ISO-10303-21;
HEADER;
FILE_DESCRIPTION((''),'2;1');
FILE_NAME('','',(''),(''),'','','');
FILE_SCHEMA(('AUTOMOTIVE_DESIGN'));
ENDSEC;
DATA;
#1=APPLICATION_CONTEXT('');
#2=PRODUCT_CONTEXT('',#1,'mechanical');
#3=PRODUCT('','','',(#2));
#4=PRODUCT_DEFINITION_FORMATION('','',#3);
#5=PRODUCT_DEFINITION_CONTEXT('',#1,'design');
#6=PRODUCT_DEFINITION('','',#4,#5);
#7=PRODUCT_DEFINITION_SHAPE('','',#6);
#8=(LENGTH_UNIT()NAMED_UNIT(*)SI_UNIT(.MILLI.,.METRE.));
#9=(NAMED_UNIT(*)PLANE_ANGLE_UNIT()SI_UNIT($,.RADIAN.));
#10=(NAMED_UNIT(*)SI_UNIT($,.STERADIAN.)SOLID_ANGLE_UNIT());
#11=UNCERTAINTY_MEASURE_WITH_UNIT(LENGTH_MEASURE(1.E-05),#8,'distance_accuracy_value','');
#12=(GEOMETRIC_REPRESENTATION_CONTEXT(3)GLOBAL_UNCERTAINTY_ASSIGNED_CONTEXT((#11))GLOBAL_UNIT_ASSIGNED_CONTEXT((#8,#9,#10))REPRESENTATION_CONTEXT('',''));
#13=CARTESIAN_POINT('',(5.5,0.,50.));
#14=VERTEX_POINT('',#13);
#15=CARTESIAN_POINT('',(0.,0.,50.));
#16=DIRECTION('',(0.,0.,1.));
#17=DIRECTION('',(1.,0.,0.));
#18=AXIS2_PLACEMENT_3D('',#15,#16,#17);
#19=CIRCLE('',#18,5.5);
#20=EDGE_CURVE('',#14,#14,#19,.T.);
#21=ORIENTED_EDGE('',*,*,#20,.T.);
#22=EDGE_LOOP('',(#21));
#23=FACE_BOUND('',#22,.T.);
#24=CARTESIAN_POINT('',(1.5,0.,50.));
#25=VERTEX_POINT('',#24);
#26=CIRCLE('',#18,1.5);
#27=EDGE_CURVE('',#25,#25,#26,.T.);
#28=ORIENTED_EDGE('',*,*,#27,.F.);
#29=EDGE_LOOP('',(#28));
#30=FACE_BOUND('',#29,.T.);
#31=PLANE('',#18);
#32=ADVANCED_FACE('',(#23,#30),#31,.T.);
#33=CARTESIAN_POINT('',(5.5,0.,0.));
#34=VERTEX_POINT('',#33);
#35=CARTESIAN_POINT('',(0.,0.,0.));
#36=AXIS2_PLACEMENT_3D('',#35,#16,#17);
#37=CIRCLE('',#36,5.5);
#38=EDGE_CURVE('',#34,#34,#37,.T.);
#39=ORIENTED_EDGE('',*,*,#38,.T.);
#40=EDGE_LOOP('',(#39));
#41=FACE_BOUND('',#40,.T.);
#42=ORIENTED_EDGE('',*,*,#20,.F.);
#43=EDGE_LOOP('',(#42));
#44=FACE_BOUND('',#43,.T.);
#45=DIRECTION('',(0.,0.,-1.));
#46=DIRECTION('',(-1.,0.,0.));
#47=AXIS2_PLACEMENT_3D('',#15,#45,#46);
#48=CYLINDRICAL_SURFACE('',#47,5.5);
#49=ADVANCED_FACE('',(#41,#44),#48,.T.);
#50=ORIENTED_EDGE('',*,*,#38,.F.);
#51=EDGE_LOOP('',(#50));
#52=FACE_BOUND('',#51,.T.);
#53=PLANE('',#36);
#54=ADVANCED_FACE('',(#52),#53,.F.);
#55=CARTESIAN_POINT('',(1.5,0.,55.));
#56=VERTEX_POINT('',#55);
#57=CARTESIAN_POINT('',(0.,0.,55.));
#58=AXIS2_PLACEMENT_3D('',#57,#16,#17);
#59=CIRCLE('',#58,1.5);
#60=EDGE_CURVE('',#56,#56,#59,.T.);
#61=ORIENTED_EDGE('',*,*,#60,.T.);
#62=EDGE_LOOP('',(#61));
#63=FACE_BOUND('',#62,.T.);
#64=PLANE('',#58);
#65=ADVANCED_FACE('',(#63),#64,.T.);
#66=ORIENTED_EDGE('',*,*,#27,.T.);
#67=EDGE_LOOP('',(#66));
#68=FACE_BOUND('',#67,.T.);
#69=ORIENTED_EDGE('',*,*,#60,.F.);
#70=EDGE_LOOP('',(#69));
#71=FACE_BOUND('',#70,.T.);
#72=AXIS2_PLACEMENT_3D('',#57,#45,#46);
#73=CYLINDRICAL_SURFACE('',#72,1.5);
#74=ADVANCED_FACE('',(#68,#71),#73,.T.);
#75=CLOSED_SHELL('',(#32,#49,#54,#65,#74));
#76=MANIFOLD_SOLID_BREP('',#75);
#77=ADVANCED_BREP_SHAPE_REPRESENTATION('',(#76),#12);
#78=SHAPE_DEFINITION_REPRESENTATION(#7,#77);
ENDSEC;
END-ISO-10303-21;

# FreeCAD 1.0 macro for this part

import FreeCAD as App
import Part
import Sketcher

V = App.Vector
Q = App.Units.Quantity

doc = App.newDocument("Part")
body = doc.addObject("PartDesign::Body", "Body")

sketch1 = body.newObject("Sketcher::SketchObject", "Sketch")
sketch1.AttachmentSupport = (doc.getObject("XY_Plane"), [""])
sketch1.MapMode = "FlatFace"
sketch1.addGeometry(Part.Circle(V(0, 0, 0), V(0, 0, 1), 5.5), False)
sketch1.addConstraint([
    Sketcher.Constraint("Coincident", 0, 3, -1, 1),
    Sketcher.Constraint("Diameter", 0, Q("11 mm")),
])
pad1 = body.newObject("PartDesign::Pad", "Pad")
pad1.Profile = sketch1
pad1.Length = 50

sketch2 = body.newObject("Sketcher::SketchObject", "Sketch001")
sketch2.AttachmentSupport = (doc.getObject("XY_Plane"), [""])
sketch2.MapMode = "FlatFace"
sketch2.AttachmentOffset = App.Placement(V(0, 0, 50), App.Rotation())
sketch2.addGeometry(Part.Circle(V(0, 0, 0), V(0, 0, 1), 1.5), False)
sketch2.addConstraint([
    Sketcher.Constraint("Coincident", 0, 3, -1, 1),
    Sketcher.Constraint("Diameter", 0, Q("3 mm")),
])
pad2 = body.newObject("PartDesign::Pad", "Pad001")
pad2.Profile = sketch2
pad2.Length = 5

doc.recompute()
